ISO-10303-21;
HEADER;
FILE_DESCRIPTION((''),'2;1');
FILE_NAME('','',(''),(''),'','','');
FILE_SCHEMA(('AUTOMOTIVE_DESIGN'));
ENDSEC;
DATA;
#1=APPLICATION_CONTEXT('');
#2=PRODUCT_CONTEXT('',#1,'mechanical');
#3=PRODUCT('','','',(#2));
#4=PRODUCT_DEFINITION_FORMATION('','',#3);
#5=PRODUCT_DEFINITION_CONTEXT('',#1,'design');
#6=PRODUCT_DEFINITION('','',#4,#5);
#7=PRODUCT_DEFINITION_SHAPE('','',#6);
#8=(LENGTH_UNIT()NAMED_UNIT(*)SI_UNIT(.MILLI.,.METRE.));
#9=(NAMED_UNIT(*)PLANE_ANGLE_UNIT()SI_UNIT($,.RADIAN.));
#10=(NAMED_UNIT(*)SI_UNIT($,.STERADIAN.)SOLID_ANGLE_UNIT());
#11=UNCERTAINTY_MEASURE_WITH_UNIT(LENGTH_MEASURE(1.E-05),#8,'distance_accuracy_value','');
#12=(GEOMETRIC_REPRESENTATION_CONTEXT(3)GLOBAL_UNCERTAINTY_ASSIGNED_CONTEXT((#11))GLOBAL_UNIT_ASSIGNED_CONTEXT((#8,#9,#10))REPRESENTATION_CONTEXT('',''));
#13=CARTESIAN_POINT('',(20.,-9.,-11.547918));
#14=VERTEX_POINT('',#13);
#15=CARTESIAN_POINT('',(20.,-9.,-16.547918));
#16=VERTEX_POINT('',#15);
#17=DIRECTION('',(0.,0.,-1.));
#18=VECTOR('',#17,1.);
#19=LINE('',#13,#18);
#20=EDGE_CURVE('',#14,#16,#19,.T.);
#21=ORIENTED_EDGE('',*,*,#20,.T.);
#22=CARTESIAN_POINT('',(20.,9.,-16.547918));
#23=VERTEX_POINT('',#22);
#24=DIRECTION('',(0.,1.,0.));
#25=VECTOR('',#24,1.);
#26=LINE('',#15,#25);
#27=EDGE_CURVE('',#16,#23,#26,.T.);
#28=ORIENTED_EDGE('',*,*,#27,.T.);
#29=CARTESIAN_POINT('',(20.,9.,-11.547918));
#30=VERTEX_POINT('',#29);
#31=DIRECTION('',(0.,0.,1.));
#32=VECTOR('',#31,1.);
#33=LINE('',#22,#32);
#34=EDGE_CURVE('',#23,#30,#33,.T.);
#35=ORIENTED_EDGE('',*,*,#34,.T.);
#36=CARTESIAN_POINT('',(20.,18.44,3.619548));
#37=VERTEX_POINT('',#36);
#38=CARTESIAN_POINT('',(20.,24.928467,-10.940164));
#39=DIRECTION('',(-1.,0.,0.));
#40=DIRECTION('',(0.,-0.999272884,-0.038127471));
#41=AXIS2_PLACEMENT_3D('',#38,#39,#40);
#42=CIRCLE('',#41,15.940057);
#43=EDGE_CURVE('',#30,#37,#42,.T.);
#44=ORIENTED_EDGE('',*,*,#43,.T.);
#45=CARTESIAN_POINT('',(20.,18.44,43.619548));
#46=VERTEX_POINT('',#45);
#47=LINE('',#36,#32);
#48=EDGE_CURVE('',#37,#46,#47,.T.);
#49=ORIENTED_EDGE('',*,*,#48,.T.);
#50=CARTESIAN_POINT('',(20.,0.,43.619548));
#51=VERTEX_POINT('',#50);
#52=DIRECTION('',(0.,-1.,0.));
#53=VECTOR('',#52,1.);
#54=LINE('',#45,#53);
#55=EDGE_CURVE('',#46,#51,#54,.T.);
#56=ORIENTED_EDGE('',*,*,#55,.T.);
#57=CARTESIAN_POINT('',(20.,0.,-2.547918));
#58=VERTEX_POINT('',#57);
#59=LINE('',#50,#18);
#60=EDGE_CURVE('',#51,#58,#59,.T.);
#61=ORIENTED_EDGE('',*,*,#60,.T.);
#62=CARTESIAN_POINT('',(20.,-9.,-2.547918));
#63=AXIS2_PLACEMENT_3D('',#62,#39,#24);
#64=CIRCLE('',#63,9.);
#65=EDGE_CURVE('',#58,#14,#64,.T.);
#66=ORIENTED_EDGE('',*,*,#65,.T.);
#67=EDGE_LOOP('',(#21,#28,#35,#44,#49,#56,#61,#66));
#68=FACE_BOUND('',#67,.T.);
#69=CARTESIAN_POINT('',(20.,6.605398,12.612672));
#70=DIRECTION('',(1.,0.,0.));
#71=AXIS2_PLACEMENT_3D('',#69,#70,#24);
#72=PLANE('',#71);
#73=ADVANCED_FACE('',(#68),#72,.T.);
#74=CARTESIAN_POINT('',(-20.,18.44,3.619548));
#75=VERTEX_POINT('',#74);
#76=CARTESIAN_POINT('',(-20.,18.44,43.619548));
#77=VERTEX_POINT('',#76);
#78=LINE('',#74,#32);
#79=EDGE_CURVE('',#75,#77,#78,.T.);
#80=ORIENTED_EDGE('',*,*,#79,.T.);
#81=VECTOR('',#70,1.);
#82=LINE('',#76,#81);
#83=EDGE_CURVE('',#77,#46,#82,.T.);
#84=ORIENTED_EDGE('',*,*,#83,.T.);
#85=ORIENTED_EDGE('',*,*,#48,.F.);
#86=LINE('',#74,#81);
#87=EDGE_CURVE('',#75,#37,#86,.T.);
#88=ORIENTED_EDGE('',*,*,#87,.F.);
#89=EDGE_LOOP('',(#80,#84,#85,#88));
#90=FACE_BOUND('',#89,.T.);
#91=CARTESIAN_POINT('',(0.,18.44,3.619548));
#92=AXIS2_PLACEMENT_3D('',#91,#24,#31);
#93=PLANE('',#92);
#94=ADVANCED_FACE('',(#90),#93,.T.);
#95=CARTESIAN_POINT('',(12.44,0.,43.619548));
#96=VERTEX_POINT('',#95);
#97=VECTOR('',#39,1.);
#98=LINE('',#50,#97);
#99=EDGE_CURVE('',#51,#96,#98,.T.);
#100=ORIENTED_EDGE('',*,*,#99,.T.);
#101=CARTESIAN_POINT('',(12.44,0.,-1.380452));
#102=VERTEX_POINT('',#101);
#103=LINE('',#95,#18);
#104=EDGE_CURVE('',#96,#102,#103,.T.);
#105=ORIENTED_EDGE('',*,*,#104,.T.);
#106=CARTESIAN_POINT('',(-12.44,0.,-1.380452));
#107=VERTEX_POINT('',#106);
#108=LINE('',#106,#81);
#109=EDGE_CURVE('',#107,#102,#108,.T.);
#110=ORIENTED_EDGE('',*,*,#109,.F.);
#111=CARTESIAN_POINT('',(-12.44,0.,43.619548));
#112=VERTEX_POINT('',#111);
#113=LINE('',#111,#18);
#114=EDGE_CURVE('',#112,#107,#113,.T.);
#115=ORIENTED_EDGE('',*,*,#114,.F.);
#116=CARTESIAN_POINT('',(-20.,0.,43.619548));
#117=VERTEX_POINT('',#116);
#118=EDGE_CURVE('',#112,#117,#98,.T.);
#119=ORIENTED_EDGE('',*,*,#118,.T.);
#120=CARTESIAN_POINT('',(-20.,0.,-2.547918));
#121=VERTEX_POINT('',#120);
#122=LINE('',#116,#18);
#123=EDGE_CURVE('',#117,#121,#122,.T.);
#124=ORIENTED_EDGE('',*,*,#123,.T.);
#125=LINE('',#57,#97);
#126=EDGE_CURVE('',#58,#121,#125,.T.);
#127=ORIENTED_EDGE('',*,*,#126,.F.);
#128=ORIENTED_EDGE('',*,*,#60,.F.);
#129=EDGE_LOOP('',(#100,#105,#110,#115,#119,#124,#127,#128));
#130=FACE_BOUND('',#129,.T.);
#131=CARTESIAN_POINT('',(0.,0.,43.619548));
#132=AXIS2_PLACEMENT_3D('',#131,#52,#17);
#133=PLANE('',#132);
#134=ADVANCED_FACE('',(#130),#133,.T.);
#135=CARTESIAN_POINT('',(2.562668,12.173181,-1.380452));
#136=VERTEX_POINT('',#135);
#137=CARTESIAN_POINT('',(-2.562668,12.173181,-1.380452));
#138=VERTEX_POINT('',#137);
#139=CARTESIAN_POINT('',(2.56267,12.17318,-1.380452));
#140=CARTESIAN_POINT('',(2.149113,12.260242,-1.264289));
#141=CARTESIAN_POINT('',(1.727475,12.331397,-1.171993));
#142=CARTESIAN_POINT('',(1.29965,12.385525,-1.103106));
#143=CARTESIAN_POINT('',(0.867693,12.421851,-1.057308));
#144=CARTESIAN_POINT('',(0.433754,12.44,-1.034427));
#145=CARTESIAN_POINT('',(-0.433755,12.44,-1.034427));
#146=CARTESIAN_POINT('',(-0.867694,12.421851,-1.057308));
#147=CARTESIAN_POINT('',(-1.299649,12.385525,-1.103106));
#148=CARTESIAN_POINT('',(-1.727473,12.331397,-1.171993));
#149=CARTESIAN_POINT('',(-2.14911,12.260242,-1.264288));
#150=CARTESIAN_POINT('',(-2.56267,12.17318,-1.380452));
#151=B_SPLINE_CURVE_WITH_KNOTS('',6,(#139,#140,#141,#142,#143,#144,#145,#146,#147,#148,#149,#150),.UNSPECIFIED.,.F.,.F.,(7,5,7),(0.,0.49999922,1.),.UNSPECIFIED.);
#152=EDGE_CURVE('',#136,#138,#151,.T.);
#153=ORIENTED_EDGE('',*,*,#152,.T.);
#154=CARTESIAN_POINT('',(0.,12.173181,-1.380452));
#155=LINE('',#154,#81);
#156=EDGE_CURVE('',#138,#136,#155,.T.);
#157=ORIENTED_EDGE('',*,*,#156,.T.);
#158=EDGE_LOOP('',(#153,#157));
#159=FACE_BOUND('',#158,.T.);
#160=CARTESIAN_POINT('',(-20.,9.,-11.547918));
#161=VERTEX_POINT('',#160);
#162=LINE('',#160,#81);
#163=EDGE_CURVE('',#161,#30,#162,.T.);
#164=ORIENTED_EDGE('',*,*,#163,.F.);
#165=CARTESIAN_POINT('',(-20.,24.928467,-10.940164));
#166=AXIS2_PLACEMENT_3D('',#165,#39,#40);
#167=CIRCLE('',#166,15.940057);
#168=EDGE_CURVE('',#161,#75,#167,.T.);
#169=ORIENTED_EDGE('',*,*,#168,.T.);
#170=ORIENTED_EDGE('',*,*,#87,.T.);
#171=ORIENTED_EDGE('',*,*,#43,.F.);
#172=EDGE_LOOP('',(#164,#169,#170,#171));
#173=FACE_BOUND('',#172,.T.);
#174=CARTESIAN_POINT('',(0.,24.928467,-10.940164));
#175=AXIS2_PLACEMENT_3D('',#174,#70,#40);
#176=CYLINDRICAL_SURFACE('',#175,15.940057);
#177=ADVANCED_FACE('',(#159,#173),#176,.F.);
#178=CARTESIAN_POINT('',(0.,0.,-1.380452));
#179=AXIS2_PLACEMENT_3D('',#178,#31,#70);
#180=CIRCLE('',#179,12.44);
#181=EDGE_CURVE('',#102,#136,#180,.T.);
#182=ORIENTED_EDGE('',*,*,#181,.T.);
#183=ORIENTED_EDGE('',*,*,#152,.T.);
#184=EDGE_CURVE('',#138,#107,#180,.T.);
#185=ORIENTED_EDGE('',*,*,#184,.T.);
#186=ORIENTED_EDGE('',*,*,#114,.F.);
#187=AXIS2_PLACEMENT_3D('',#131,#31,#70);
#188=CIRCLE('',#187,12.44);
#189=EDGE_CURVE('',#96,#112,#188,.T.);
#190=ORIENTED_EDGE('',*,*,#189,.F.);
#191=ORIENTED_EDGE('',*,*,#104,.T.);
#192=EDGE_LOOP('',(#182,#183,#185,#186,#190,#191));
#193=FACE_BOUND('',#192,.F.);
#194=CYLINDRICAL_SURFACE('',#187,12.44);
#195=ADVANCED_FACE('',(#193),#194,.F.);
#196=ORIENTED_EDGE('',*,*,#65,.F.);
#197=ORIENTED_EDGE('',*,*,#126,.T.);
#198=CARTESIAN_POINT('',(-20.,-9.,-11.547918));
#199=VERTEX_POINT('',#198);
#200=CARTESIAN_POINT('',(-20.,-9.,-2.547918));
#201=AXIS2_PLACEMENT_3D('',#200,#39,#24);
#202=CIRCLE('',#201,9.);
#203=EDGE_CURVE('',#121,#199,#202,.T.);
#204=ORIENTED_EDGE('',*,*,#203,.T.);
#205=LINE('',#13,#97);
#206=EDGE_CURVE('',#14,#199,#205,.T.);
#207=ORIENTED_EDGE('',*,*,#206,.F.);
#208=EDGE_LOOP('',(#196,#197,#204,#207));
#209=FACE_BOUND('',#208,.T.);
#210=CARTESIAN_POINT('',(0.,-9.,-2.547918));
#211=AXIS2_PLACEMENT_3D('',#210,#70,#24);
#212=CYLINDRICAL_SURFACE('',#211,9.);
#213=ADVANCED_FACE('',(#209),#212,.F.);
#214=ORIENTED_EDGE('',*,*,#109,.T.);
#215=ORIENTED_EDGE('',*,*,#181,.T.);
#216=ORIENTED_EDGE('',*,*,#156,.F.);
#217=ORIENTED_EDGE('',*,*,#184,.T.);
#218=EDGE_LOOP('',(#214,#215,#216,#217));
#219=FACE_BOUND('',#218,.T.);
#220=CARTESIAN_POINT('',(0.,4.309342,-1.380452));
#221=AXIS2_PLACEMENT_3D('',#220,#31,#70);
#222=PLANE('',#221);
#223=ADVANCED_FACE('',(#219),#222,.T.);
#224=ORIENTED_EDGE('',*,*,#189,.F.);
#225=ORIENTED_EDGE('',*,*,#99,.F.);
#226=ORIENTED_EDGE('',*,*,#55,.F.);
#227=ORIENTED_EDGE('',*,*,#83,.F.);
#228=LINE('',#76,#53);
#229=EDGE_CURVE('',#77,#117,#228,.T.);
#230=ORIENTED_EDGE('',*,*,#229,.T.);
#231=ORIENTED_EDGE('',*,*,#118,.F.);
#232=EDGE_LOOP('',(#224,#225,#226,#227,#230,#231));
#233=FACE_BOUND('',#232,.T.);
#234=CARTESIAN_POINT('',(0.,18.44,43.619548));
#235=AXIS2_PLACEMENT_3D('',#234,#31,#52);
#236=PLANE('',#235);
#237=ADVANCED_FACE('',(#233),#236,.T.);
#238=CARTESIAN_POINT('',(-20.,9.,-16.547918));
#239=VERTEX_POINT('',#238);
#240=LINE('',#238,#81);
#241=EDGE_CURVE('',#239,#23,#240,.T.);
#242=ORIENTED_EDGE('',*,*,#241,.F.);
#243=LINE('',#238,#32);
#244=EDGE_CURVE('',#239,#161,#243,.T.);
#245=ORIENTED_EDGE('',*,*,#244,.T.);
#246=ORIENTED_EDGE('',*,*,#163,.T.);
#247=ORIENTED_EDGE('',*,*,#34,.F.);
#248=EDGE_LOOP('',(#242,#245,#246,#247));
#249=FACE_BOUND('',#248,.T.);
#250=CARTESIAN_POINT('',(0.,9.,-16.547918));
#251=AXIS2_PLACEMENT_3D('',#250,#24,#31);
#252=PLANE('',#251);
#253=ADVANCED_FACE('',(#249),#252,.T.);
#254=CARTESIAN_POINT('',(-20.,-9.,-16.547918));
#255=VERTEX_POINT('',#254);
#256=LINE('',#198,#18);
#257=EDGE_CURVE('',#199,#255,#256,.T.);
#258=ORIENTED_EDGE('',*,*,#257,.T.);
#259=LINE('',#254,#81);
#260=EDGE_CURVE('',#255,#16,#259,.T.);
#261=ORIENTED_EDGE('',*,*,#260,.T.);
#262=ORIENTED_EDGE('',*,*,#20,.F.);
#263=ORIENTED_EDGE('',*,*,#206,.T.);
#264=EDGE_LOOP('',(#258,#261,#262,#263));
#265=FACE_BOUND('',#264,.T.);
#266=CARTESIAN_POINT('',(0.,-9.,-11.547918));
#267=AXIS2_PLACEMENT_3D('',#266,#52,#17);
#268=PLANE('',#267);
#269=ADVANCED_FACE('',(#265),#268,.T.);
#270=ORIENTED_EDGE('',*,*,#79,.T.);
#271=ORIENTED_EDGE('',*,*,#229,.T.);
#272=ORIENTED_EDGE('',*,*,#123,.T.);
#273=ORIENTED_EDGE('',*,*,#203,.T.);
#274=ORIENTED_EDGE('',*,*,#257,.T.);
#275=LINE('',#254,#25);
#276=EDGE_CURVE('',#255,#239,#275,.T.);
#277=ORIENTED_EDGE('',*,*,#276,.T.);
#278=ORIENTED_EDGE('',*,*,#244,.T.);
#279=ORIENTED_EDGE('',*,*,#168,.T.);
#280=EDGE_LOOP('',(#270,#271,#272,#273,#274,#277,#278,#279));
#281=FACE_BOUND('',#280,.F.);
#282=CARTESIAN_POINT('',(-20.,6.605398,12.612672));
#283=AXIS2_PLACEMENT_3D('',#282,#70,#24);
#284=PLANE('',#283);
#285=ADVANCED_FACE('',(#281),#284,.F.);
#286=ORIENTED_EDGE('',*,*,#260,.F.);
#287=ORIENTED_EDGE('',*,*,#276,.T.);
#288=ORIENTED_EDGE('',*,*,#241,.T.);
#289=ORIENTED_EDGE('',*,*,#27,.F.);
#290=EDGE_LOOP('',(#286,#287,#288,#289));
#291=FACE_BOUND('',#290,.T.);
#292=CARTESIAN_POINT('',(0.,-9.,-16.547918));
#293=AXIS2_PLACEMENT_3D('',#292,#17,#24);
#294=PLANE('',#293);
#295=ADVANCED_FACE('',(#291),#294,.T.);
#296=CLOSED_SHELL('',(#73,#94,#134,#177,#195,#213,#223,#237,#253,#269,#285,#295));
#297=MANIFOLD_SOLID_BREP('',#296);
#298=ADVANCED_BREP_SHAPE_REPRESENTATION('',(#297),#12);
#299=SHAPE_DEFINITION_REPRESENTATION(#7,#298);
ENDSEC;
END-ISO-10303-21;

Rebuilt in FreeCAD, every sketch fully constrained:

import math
import FreeCAD as App
import Part
import Sketcher
from FreeCAD import Vector

doc = App.newDocument("Part")
body = doc.addObject("PartDesign::Body", "Body")

# Sketch on YZ plane
sketch1 = body.newObject("Sketcher::SketchObject", "Sketch")
sketch1.AttachmentSupport = (doc.getObject("YZ_Plane"), [""])
sketch1.MapMode = "FlatFace"
sketch1.addGeometry(Part.LineSegment(Vector(-9, -11.5, 0), Vector(-9, -16.5, 0)), False)
sketch1.addGeometry(Part.LineSegment(Vector(-9, -16.5, 0), Vector(9, -16.5, 0)), False)
sketch1.addGeometry(Part.LineSegment(Vector(9, -16.5, 0), Vector(9, -11.5, 0)), False)
sketch1.addGeometry(Part.ArcOfCircle(Part.Circle(Vector(24.9, -10.9, 0), Vector(0, 0, 1), 15.9), math.radians(114), math.radians(182)), False)
sketch1.addGeometry(Part.LineSegment(Vector(18.4, 3.6, 0), Vector(18.4, 43.6, 0)), False)
sketch1.addGeometry(Part.LineSegment(Vector(18.4, 43.6, 0), Vector(0, 43.6, 0)), False)
sketch1.addGeometry(Part.LineSegment(Vector(0, 43.6, 0), Vector(0, -2.5, 0)), False)
sketch1.addGeometry(Part.ArcOfCircle(Part.Circle(Vector(-9, -2.5, 0), Vector(0, 0, 1), 9), math.radians(-90), math.radians(0)), False)
sketch1.addConstraint(Sketcher.Constraint("Coincident", 0, 2, 1, 1))
sketch1.addConstraint(Sketcher.Constraint("Coincident", 1, 2, 2, 1))
sketch1.addConstraint(Sketcher.Constraint("Coincident", 2, 2, 3, 2))
sketch1.addConstraint(Sketcher.Constraint("Coincident", 3, 1, 4, 1))
sketch1.addConstraint(Sketcher.Constraint("Coincident", 4, 2, 5, 1))
sketch1.addConstraint(Sketcher.Constraint("Coincident", 5, 2, 6, 1))
sketch1.addConstraint(Sketcher.Constraint("Tangent", 6, 2, 7, 2))
sketch1.addConstraint(Sketcher.Constraint("Coincident", 7, 1, 0, 1))
sketch1.addConstraint(Sketcher.Constraint("Vertical", 0))
sketch1.addConstraint(Sketcher.Constraint("Horizontal", 1))
sketch1.addConstraint(Sketcher.Constraint("Vertical", 2))
sketch1.addConstraint(Sketcher.Constraint("Vertical", 4))
sketch1.addConstraint(Sketcher.Constraint("Horizontal", 5))
sketch1.addConstraint(Sketcher.Constraint("Vertical", 6))
sketch1.addConstraint(Sketcher.Constraint("Symmetric", 2, 2, 7, 1, -2))
sketch1.addConstraint(Sketcher.Constraint("PointOnObject", 5, 2, -2))
sketch1.addConstraint(Sketcher.Constraint("Vertical", 7, 3, 0, 2))
sketch1.addConstraint(Sketcher.Constraint("Radius", 7, 9.0))
sketch1.addConstraint(Sketcher.Constraint("DistanceY", 0, 2, 0, 1, 5.0))
sketch1.addConstraint(Sketcher.Constraint("DistanceY", 4, 1, 4, 2, 40.0))
sketch1.addConstraint(Sketcher.Constraint("DistanceX", 5, 2, 5, 1, 18.44))
sketch1.addConstraint(Sketcher.Constraint("Radius", 3, 15.940057))
sketch1.addConstraint(Sketcher.Constraint("DistanceY", 6, 2, 6, 1, 46.167467))
sketch1.addConstraint(Sketcher.Constraint("DistanceY", 7, 3, -1, 1, 2.547918))
pad1 = body.newObject("PartDesign::Pad", "Pad")
pad1.Profile = sketch1
pad1.Length = 40
pad1.Midplane = True

# Sketch on XY plane
sketch2 = body.newObject("Sketcher::SketchObject", "Sketch001")
sketch2.AttachmentSupport = (doc.getObject("XY_Plane"), [""])
sketch2.MapMode = "FlatFace"
sketch2.AttachmentOffset = App.Placement(Vector(0, 0, 43.619548), App.Rotation())
sketch2.addGeometry(Part.LineSegment(Vector(-12, 0, 0), Vector(12, 0, 0)), False)
sketch2.addGeometry(Part.ArcOfCircle(Part.Circle(Vector(0, 0, 0), Vector(0, 0, 1), 12), math.radians(0), math.radians(180)), False)
sketch2.addConstraint(Sketcher.Constraint("Coincident", 0, 1, 1, 2))
sketch2.addConstraint(Sketcher.Constraint("Coincident", 1, 1, 0, 2))
sketch2.addConstraint(Sketcher.Constraint("Horizontal", 0))
sketch2.addConstraint(Sketcher.Constraint("Coincident", 1, 3, -1, 1))
sketch2.addConstraint(Sketcher.Constraint("PointOnObject", 0, 1, -1))
sketch2.addConstraint(Sketcher.Constraint("Radius", 1, 12.44))
pocket1 = body.newObject("PartDesign::Pocket", "Pocket")
pocket1.Profile = sketch2
pocket1.Length = 45

doc.recompute()
